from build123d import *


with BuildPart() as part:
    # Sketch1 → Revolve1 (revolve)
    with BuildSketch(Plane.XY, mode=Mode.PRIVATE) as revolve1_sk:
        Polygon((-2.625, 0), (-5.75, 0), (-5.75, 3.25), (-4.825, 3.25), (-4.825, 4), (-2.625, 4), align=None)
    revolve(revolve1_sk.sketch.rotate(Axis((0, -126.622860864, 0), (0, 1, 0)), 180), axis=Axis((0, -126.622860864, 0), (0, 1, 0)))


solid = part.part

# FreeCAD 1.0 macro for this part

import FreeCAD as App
import Part
import Sketcher


def add_polygon(sketch, points):
    """Adds a closed chain of lines whose ends are joined by coincident constraints."""
    first, n = sketch.GeometryCount, len(points)
    for a, b in zip(points, points[1:] + points[:1]):
        sketch.addGeometry(Part.LineSegment(App.Vector(*a, 0), App.Vector(*b, 0)), False)
    for i in range(n):
        sketch.addConstraint(Sketcher.Constraint("Coincident", first + i, 2, first + (i + 1) % n, 1))

doc = App.newDocument("Part")
params = doc.addObject("Spreadsheet::Sheet", "Params")
for row, (alias, value) in enumerate([
    ("sketch1_height", "4 mm"),
    ("sketch1_width", "2.2 mm"),
    ("sketch1_height2", "0.75 mm"),
    ("revolution_angle", "360 deg"),
], start=1):
    params.set(f"A{row}", alias)
    params.set(f"B{row}", "=" + value)
    params.setAlias(f"B{row}", alias)

body = doc.addObject("PartDesign::Body", "Body")

sketch1 = body.newObject("Sketcher::SketchObject", "Sketch")
sketch1.AttachmentSupport = (doc.getObject("XY_Plane"), [""])
sketch1.MapMode = "FlatFace"
add_polygon(sketch1, [(-5.75, 0), (-2.625, 0), (-2.625, 4), (-4.825, 4), (-4.825, 3.25), (-5.75, 3.25)])
sketch1.addConstraint([
    Sketcher.Constraint("Horizontal", 0),
    Sketcher.Constraint("Vertical", 1),
    Sketcher.Constraint("Horizontal", 2),
    Sketcher.Constraint("Vertical", 3),
    Sketcher.Constraint("Horizontal", 4),
    Sketcher.Constraint("Vertical", 5),
    Sketcher.Constraint("PointOnObject", 0, 2, -1),
    Sketcher.Constraint("DistanceY", 1, 1, 1, 2, 4.0),
    Sketcher.Constraint("DistanceX", 2, 2, 2, 1, 2.2),
    Sketcher.Constraint("DistanceY", 3, 2, 3, 1, 0.75),
    Sketcher.Constraint("DistanceX", 0, 1, 0, 2, 3.125),
    Sketcher.Constraint("DistanceX", 4, 2, -1, 1, 5.75),
])
sketch1.setExpression("Constraints[13]", "Params.sketch1_height")
sketch1.setExpression("Constraints[14]", "Params.sketch1_width")
sketch1.setExpression("Constraints[15]", "Params.sketch1_height2")
revolution = body.newObject("PartDesign::Revolution", "Revolution")
revolution.Profile = sketch1
revolution.ReferenceAxis = (sketch1, ["V_Axis"])
revolution.setExpression("Angle", "Params.revolution_angle")

doc.recompute()
